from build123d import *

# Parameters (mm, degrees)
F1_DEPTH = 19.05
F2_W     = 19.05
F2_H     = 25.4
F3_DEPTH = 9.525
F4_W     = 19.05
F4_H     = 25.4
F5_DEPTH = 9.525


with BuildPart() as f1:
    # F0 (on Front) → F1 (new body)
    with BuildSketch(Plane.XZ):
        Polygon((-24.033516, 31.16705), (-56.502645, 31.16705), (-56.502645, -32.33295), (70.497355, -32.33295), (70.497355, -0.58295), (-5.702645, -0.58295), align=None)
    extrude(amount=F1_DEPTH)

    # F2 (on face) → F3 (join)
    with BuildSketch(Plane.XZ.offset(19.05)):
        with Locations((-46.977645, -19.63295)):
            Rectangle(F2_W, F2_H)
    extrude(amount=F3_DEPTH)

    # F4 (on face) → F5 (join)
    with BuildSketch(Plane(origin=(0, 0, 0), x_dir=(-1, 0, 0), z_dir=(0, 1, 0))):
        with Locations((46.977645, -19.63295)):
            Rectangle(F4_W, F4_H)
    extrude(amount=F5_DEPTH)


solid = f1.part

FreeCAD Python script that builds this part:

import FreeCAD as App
import Part
import Sketcher
Q = App.Units.Quantity


def add_polygon(sketch, points):
    """Adds a closed chain of lines whose ends are joined by coincident constraints."""
    first, n = sketch.GeometryCount, len(points)
    for a, b in zip(points, points[1:] + points[:1]):
        sketch.addGeometry(Part.LineSegment(App.Vector(*a, 0), App.Vector(*b, 0)), False)
    for i in range(n):
        sketch.addConstraint(Sketcher.Constraint("Coincident", first + i, 2, first + (i + 1) % n, 1))

doc = App.newDocument("Part")
params = doc.addObject("Spreadsheet::Sheet", "Params")
for row, (alias, value) in enumerate([
    ("sketch1_width", "5 in"),
    ("sketch1_width2", "3 in"),
    ("sketch1_height", "2.5 in"),
    ("sketch1_height2", "1.25 in"),
    ("pad1_length", "0.75 in"),
    ("sketch2_height", "1 in"),
    ("sketch2_width", "0.75 in"),
    ("pad2_length", "0.375 in"),
    ("sketch3_height", "1 in"),
    ("sketch3_width", "0.75 in"),
    ("pad3_length", "0.375 in"),
], start=1):
    params.set(f"A{row}", alias)
    params.set(f"B{row}", "=" + value)
    params.setAlias(f"B{row}", alias)

body = doc.addObject("PartDesign::Body", "Body")

# Sketch on XZ plane
sketch1 = body.newObject("Sketcher::SketchObject", "Sketch")
sketch1.AttachmentSupport = (doc.getObject("XZ_Plane"), [""])
sketch1.MapMode = "FlatFace"
add_polygon(sketch1, [(-24, 31), (-57, 31), (-57, -32), (70, -32), (70, -1), (-6, -1)])  # lines 0-5
sketch1.addConstraint([
    Sketcher.Constraint("Horizontal", 0),
    Sketcher.Constraint("Vertical", 1),
    Sketcher.Constraint("Horizontal", 2),
    Sketcher.Constraint("Vertical", 3),
    Sketcher.Constraint("Horizontal", 4),
    Sketcher.Constraint("DistanceX", 2, 1, 2, 2, Q("5 in")),
    Sketcher.Constraint("DistanceX", 4, 2, 4, 1, Q("3 in")),
    Sketcher.Constraint("DistanceY", 1, 2, 1, 1, Q("2.5 in")),
    Sketcher.Constraint("Angle", 5, Q("120 deg")),
    Sketcher.Constraint("DistanceY", 3, 1, 3, 2, Q("1.25 in")),
    Sketcher.Constraint("DistanceY", -1, 1, 0, 2, Q("31.16705 mm")),
    Sketcher.Constraint("DistanceX", 0, 2, -1, 1, Q("56.502645 mm")),
])
sketch1.setExpression("Constraints[11]", "Params.sketch1_width")
sketch1.setExpression("Constraints[12]", "Params.sketch1_width2")
sketch1.setExpression("Constraints[13]", "Params.sketch1_height")
sketch1.setExpression("Constraints[15]", "Params.sketch1_height2")
pad1 = body.newObject("PartDesign::Pad", "Pad")
pad1.Profile = sketch1
pad1.setExpression("Length", "Params.pad1_length")

# Sketch on XZ plane
sketch2 = body.newObject("Sketcher::SketchObject", "Sketch001")
sketch2.AttachmentSupport = (doc.getObject("XZ_Plane"), [""])
sketch2.MapMode = "FlatFace"
sketch2.AttachmentOffset = App.Placement(App.Vector(0, 0, 0.75 * 25.4), App.Rotation())
add_polygon(sketch2, [(-57, -7), (-57, -32), (-37, -32), (-37, -7)])  # lines 0-3
sketch2.addConstraint([
    Sketcher.Constraint("Vertical", 0),
    Sketcher.Constraint("Horizontal", 1),
    Sketcher.Constraint("Vertical", 2),
    Sketcher.Constraint("Horizontal", 3),
    Sketcher.Constraint("DistanceY", 0, 2, 0, 1, Q("1 in")),
    Sketcher.Constraint("DistanceX", 1, 1, 1, 2, Q("0.75 in")),
    Sketcher.Constraint("DistanceY", 0, 2, -1, 1, Q("32.33295 mm")),
    Sketcher.Constraint("DistanceX", 0, 2, -1, 1, Q("56.502645 mm")),
])
sketch2.setExpression("Constraints[8]", "Params.sketch2_height")
sketch2.setExpression("Constraints[9]", "Params.sketch2_width")
pad2 = body.newObject("PartDesign::Pad", "Pad001")
pad2.Profile = sketch2
pad2.setExpression("Length", "Params.pad2_length")

# Sketch on XZ plane
sketch3 = body.newObject("Sketcher::SketchObject", "Sketch002")
sketch3.AttachmentSupport = (doc.getObject("XZ_Plane"), [""])
sketch3.MapMode = "FlatFace"
add_polygon(sketch3, [(-37, -7), (-37, -32), (-57, -32), (-57, -7)])  # lines 0-3
sketch3.addConstraint([
    Sketcher.Constraint("Vertical", 0),
    Sketcher.Constraint("Horizontal", 1),
    Sketcher.Constraint("Vertical", 2),
    Sketcher.Constraint("Horizontal", 3),
    Sketcher.Constraint("DistanceY", 0, 2, 0, 1, Q("1 in")),
    Sketcher.Constraint("DistanceX", 1, 2, 1, 1, Q("0.75 in")),
    Sketcher.Constraint("DistanceY", 0, 2, -1, 1, Q("32.33295 mm")),
    Sketcher.Constraint("DistanceX", 0, 2, -1, 1, Q("37.452645 mm")),
])
sketch3.setExpression("Constraints[8]", "Params.sketch3_height")
sketch3.setExpression("Constraints[9]", "Params.sketch3_width")
pad3 = body.newObject("PartDesign::Pad", "Pad002")
pad3.Profile = sketch3
pad3.setExpression("Length", "Params.pad3_length")
pad3.Reversed = True

doc.recompute()
